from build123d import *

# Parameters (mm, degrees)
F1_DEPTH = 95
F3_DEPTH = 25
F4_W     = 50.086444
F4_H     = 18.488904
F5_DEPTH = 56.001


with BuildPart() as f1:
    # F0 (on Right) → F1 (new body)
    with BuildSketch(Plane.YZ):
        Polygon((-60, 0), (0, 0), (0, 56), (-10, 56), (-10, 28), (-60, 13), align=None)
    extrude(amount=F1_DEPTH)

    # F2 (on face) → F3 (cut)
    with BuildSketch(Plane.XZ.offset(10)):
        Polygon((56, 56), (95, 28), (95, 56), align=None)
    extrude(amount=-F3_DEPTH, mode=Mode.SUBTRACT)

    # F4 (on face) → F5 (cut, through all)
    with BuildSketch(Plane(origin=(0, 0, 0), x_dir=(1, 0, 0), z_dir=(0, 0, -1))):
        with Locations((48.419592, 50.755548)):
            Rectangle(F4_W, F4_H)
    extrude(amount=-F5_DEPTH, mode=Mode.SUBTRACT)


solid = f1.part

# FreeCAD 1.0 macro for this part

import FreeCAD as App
import Part
import Sketcher

V = App.Vector

doc = App.newDocument("Part")
params = doc.addObject("Spreadsheet::Sheet", "Params")
for row, (alias, value) in enumerate([
    ("sketch1_width", "60 mm"),
    ("sketch1_width2", "10 mm"),
    ("sketch1_height", "56 mm"),
    ("sketch1_height2", "28 mm"),
    ("sketch1_height3", "13 mm"),
    ("pad1_length", "95 mm"),
    ("sketch2_width", "39 mm"),
    ("sketch2_height", "28 mm"),
    ("pocket1_length", "25 mm"),
], start=1):
    params.set(f"A{row}", alias)
    params.set(f"B{row}", "=" + value)
    params.setAlias(f"B{row}", alias)

body = doc.addObject("PartDesign::Body", "Body")

sketch1 = doc.addObject("Sketcher::SketchObject", "Sketch")
body.addObject(sketch1)
sketch1.AttachmentSupport = (doc.YZ_Plane, [""])
sketch1.MapMode = "FlatFace"
sketch1.addGeometry(Part.LineSegment(V(-60, 0, 0), V(0, 0, 0)), False)
sketch1.addGeometry(Part.LineSegment(V(0, 0, 0), V(0, 56, 0)), False)
sketch1.addGeometry(Part.LineSegment(V(0, 56, 0), V(-10, 56, 0)), False)
sketch1.addGeometry(Part.LineSegment(V(-10, 56, 0), V(-10, 28, 0)), False)
sketch1.addGeometry(Part.LineSegment(V(-10, 28, 0), V(-60, 13, 0)), False)
sketch1.addGeometry(Part.LineSegment(V(-60, 13, 0), V(-60, 0, 0)), False)
sketch1.addConstraint(Sketcher.Constraint("Coincident", 0, 2, 1, 1))
sketch1.addConstraint(Sketcher.Constraint("Coincident", 1, 2, 2, 1))
sketch1.addConstraint(Sketcher.Constraint("Coincident", 2, 2, 3, 1))
sketch1.addConstraint(Sketcher.Constraint("Coincident", 3, 2, 4, 1))
sketch1.addConstraint(Sketcher.Constraint("Coincident", 4, 2, 5, 1))
sketch1.addConstraint(Sketcher.Constraint("Coincident", 5, 2, 0, 1))
sketch1.addConstraint(Sketcher.Constraint("Horizontal", 0))
sketch1.addConstraint(Sketcher.Constraint("Vertical", 1))
sketch1.addConstraint(Sketcher.Constraint("Horizontal", 2))
sketch1.addConstraint(Sketcher.Constraint("Vertical", 3))
sketch1.addConstraint(Sketcher.Constraint("Vertical", 5))
sketch1.addConstraint(Sketcher.Constraint("Coincident", 0, 2, -1, 1))
sketch1.addConstraint(Sketcher.Constraint("DistanceX", 0, 1, 0, 2, 60.0))
sketch1.addConstraint(Sketcher.Constraint("DistanceX", 2, 2, 2, 1, 10.0))
sketch1.addConstraint(Sketcher.Constraint("DistanceY", 1, 1, 1, 2, 56.0))
sketch1.addConstraint(Sketcher.Constraint("DistanceY", 3, 2, 3, 1, 28.0))
sketch1.addConstraint(Sketcher.Constraint("DistanceY", 5, 2, 5, 1, 13.0))
sketch1.setExpression("Constraints[12]", "Params.sketch1_width")
sketch1.setExpression("Constraints[13]", "Params.sketch1_width2")
sketch1.setExpression("Constraints[14]", "Params.sketch1_height")
sketch1.setExpression("Constraints[15]", "Params.sketch1_height2")
sketch1.setExpression("Constraints[16]", "Params.sketch1_height3")
pad1 = doc.addObject("PartDesign::Pad", "Pad")
body.addObject(pad1)
pad1.Profile = sketch1
pad1.setExpression("Length", "Params.pad1_length")

sketch2 = doc.addObject("Sketcher::SketchObject", "Sketch001")
body.addObject(sketch2)
sketch2.AttachmentSupport = (doc.XZ_Plane, [""])
sketch2.MapMode = "FlatFace"
sketch2.AttachmentOffset = App.Placement(V(0, 0, 10), App.Rotation())
sketch2.addGeometry(Part.LineSegment(V(56, 56, 0), V(95, 28, 0)), False)
sketch2.addGeometry(Part.LineSegment(V(95, 28, 0), V(95, 56, 0)), False)
sketch2.addGeometry(Part.LineSegment(V(95, 56, 0), V(56, 56, 0)), False)
sketch2.addConstraint(Sketcher.Constraint("Coincident", 0, 2, 1, 1))
sketch2.addConstraint(Sketcher.Constraint("Coincident", 1, 2, 2, 1))
sketch2.addConstraint(Sketcher.Constraint("Coincident", 2, 2, 0, 1))
sketch2.addConstraint(Sketcher.Constraint("Vertical", 1))
sketch2.addConstraint(Sketcher.Constraint("Horizontal", 2))
sketch2.addConstraint(Sketcher.Constraint("DistanceX", 2, 2, 2, 1, 39.0))
sketch2.addConstraint(Sketcher.Constraint("DistanceY", 1, 1, 1, 2, 28.0))
sketch2.addConstraint(Sketcher.Constraint("DistanceX", -1, 1, 0, 2, 95.0))
sketch2.addConstraint(Sketcher.Constraint("DistanceY", -1, 1, 0, 2, 28.0))
sketch2.setExpression("Constraints[5]", "Params.sketch2_width")
sketch2.setExpression("Constraints[6]", "Params.sketch2_height")
pocket1 = doc.addObject("PartDesign::Pocket", "Pocket")
body.addObject(pocket1)
pocket1.Profile = sketch2
pocket1.setExpression("Length", "Params.pocket1_length")

sketch3 = doc.addObject("Sketcher::SketchObject", "Sketch002")
body.addObject(sketch3)
sketch3.AttachmentSupport = (doc.XY_Plane, [""])
sketch3.MapMode = "FlatFace"
sketch3.addGeometry(Part.LineSegment(V(23, -60, 0), V(23, -42, 0)), False)
sketch3.addGeometry(Part.LineSegment(V(23, -42, 0), V(73, -42, 0)), False)
sketch3.addGeometry(Part.LineSegment(V(73, -42, 0), V(73, -60, 0)), False)
sketch3.addGeometry(Part.LineSegment(V(73, -60, 0), V(23, -60, 0)), False)
sketch3.addConstraint(Sketcher.Constraint("Coincident", 0, 2, 1, 1))
sketch3.addConstraint(Sketcher.Constraint("Coincident", 1, 2, 2, 1))
sketch3.addConstraint(Sketcher.Constraint("Coincident", 2, 2, 3, 1))
sketch3.addConstraint(Sketcher.Constraint("Coincident", 3, 2, 0, 1))
sketch3.addConstraint(Sketcher.Constraint("Vertical", 0))
sketch3.addConstraint(Sketcher.Constraint("Horizontal", 1))
sketch3.addConstraint(Sketcher.Constraint("Vertical", 2))
sketch3.addConstraint(Sketcher.Constraint("Horizontal", 3))
sketch3.addConstraint(Sketcher.Constraint("DistanceY", 2, 2, -1, 1, 60.0))
sketch3.addConstraint(Sketcher.Constraint("DistanceX", 1, 1, 1, 2, 50.086444))
sketch3.addConstraint(Sketcher.Constraint("DistanceY", 0, 1, 0, 2, 18.488904))
sketch3.addConstraint(Sketcher.Constraint("DistanceX", -1, 1, 0, 2, 23.37637))
pocket2 = doc.addObject("PartDesign::Pocket", "Pocket001")
body.addObject(pocket2)
pocket2.Profile = sketch3
pocket2.Type = "ThroughAll"
pocket2.Reversed = True

doc.recompute()
